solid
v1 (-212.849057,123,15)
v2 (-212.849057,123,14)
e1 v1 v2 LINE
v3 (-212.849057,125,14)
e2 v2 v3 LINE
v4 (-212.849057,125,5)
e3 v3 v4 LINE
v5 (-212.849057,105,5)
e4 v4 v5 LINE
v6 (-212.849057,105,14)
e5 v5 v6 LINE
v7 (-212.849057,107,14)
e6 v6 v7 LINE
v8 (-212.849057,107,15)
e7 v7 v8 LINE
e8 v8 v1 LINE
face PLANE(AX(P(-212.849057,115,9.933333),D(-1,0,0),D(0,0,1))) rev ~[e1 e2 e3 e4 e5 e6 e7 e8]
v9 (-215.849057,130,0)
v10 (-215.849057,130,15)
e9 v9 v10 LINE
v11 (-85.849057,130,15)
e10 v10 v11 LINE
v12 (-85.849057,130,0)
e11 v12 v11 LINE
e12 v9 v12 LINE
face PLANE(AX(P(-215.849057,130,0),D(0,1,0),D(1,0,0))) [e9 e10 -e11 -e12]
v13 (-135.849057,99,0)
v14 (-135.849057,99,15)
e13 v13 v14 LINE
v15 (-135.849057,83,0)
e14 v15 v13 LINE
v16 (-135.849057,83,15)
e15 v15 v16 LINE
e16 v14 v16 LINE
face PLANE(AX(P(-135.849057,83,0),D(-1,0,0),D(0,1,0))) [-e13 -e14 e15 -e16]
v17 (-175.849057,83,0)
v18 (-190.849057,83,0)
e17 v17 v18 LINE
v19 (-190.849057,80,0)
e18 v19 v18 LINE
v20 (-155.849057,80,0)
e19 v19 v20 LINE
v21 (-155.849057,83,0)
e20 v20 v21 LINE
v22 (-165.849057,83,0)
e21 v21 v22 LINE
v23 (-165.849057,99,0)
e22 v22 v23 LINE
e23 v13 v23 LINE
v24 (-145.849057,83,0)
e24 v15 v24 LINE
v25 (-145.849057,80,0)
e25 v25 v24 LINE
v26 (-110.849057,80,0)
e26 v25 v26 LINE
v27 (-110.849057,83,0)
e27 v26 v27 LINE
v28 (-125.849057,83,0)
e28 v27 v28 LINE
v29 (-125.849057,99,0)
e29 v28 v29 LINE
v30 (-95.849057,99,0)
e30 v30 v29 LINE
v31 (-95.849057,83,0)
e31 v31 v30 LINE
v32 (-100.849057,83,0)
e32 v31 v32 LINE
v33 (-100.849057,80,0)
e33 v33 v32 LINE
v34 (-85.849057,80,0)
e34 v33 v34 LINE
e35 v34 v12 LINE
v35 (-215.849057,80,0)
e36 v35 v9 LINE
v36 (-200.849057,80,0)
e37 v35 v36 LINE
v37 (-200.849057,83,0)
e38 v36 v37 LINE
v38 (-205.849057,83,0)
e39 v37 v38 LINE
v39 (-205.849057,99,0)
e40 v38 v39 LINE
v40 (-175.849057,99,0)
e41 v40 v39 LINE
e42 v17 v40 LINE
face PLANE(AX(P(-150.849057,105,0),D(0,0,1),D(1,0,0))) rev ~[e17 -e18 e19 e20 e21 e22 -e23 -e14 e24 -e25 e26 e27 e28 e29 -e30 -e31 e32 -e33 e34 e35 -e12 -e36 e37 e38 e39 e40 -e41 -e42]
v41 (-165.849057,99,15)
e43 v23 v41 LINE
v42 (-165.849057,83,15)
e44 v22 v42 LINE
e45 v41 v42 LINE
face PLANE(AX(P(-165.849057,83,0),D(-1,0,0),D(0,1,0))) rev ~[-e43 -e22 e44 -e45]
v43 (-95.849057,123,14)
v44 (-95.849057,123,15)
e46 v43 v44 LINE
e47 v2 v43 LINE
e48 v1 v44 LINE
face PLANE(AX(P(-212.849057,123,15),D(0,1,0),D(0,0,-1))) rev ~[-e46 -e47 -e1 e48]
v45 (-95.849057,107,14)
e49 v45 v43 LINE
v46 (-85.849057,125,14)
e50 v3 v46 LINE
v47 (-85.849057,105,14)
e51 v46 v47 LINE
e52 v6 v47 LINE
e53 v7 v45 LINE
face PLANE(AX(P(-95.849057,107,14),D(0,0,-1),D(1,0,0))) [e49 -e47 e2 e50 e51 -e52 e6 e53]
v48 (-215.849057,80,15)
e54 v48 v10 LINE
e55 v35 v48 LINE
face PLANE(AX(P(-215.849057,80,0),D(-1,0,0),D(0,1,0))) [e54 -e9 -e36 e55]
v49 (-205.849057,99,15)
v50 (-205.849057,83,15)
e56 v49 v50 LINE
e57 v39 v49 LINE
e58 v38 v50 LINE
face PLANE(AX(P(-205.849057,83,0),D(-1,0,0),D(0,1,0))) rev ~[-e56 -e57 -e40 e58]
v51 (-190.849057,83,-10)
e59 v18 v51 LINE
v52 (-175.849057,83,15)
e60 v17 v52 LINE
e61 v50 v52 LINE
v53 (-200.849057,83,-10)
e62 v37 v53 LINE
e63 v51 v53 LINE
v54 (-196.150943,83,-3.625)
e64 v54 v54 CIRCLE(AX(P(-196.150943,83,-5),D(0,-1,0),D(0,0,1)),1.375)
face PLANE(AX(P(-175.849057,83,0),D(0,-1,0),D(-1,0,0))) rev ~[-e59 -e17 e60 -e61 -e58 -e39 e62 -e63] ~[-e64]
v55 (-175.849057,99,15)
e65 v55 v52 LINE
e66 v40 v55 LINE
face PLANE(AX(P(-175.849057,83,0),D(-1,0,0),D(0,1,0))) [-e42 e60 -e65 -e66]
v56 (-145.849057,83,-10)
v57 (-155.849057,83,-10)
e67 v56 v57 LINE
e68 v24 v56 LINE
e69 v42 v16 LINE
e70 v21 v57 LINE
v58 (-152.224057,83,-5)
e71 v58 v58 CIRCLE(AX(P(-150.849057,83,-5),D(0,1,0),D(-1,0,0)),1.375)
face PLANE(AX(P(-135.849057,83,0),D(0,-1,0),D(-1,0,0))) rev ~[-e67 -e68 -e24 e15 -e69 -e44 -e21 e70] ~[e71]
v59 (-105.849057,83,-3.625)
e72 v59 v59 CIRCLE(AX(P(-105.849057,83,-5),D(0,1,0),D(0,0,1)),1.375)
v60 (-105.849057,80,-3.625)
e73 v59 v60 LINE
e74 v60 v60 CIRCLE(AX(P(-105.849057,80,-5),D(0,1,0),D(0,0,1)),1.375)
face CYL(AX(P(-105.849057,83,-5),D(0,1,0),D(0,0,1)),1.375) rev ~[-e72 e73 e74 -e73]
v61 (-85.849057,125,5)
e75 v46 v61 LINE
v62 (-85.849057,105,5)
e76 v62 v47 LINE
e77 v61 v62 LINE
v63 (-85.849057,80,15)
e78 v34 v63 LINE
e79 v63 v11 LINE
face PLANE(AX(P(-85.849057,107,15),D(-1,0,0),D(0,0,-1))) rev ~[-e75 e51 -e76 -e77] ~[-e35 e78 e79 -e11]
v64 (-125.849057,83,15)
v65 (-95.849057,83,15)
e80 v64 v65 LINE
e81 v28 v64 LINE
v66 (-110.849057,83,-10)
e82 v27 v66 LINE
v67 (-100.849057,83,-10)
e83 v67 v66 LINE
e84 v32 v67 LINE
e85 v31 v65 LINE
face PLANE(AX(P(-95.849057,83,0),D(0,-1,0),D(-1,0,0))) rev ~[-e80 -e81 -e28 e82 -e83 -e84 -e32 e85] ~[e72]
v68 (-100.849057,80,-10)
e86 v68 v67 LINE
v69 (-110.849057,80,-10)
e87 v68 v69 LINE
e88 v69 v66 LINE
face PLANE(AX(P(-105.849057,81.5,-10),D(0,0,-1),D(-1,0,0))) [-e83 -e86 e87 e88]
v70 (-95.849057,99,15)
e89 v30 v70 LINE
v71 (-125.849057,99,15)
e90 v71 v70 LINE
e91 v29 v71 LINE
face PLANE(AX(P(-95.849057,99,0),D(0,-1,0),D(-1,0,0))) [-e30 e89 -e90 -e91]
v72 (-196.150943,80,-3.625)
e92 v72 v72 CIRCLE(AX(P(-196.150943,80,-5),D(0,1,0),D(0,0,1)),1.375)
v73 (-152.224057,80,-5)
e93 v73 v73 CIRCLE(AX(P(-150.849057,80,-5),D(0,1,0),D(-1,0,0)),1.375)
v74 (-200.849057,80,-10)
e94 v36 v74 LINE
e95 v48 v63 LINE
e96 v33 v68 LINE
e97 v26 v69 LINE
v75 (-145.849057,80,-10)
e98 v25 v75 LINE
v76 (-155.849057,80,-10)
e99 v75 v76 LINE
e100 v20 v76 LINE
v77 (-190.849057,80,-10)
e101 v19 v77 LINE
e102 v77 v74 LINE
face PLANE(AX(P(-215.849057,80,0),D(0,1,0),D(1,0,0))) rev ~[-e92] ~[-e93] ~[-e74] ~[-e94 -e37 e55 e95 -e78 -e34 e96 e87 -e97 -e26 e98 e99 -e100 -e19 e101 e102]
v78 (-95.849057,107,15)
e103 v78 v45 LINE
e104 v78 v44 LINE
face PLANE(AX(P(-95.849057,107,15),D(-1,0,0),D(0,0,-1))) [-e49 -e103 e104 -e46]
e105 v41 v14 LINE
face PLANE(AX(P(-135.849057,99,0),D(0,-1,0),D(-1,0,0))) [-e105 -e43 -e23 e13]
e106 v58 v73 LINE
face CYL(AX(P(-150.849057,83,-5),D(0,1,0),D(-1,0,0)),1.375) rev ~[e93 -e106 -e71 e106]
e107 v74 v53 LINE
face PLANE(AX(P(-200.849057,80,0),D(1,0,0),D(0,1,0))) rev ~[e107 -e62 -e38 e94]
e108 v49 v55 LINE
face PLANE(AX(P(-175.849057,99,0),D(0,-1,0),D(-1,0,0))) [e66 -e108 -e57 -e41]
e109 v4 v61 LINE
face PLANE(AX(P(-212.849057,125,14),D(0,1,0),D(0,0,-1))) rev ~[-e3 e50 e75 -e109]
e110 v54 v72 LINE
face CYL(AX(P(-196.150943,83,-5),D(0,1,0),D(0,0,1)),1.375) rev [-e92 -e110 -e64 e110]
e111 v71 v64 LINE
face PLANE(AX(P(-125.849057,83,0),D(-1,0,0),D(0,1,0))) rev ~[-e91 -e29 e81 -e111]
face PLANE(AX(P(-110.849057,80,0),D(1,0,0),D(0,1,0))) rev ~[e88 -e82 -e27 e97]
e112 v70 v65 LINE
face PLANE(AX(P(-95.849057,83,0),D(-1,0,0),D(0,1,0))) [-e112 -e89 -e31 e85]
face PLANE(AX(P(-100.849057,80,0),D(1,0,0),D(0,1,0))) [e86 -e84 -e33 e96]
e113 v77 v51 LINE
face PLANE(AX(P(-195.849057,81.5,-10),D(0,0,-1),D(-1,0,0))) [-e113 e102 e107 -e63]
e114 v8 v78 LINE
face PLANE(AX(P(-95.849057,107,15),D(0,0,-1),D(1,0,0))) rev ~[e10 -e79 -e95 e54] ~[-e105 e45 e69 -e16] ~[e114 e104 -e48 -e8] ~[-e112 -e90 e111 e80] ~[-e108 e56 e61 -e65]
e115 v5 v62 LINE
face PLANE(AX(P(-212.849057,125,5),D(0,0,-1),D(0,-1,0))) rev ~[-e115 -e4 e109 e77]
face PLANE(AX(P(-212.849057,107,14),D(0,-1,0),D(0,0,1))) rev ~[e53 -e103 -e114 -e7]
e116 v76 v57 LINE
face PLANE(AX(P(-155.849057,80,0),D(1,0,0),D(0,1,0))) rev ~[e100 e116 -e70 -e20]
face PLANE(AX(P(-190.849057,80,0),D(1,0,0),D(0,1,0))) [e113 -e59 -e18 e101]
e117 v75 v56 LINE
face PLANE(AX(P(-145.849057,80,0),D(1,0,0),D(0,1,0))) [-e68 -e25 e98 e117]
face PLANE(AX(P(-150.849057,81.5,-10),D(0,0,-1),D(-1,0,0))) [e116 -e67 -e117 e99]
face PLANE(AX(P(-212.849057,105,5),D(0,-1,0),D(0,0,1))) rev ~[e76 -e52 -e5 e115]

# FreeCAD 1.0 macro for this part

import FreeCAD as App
import Part
import Sketcher

V = App.Vector


def add_polygon(sketch, points):
    """Adds a closed chain of lines whose ends are joined by coincident constraints."""
    first, n = sketch.GeometryCount, len(points)
    for a, b in zip(points, points[1:] + points[:1]):
        sketch.addGeometry(Part.LineSegment(App.Vector(*a, 0), App.Vector(*b, 0)), False)
    for i in range(n):
        sketch.addConstraint(Sketcher.Constraint("Coincident", first + i, 2, first + (i + 1) % n, 1))

doc = App.newDocument("Part")
params = doc.addObject("Spreadsheet::Sheet", "Params")
for row, (alias, value) in enumerate([
    ("sketch1_width", "130 mm"),
    ("sketch1_height", "50 mm"),
    ("pad1_length", "15 mm"),
    ("sketch2_width", "2 mm"),
    ("sketch2_width2", "16 mm"),
    ("sketch2_height", "9 mm"),
    ("sketch2_height2", "1 mm"),
    ("pocket1_length", "185.458667 mm"),
    ("pocket1_length2", "127 mm"),
    ("sketch3_width", "10 mm"),
    ("sketch3_height", "3 mm"),
    ("pad2_length", "10 mm"),
    ("sketch4_width", "30 mm"),
    ("sketch4_height", "16 mm"),
    ("sketch5_diameter", "2.75 mm"),
    ("sketch6_width", "10 mm"),
    ("sketch6_height", "3 mm"),
    ("pad3_length", "10 mm"),
    ("sketch7_diameter", "2.75 mm"),
    ("pocket4_length", "10 mm"),
    ("sketch8_width", "10 mm"),
    ("sketch8_height", "1 mm"),
    ("pad4_length", "20 mm"),
], start=1):
    params.set(f"A{row}", alias)
    params.set(f"B{row}", "=" + value)
    params.setAlias(f"B{row}", alias)

body = doc.addObject("PartDesign::Body", "Body")

sketch1 = body.newObject("Sketcher::SketchObject", "Sketch")
sketch1.AttachmentSupport = (doc.getObject("XY_Plane"), [""])
sketch1.MapMode = "FlatFace"
add_polygon(sketch1, [(-216, 130), (-216, 80), (-86, 80), (-86, 130)])
sketch1.addConstraint([
    Sketcher.Constraint("Vertical", 0),
    Sketcher.Constraint("Horizontal", 1),
    Sketcher.Constraint("Vertical", 2),
    Sketcher.Constraint("Horizontal", 3),
    Sketcher.Constraint("DistanceX", 1, 1, 1, 2, 130.0),
    Sketcher.Constraint("DistanceY", 0, 2, 0, 1, 50.0),
    Sketcher.Constraint("DistanceY", -1, 1, 0, 2, 80.0),
    Sketcher.Constraint("DistanceX", 0, 2, -1, 1, 215.849057),
])
sketch1.setExpression("Constraints[8]", "Params.sketch1_width")
sketch1.setExpression("Constraints[9]", "Params.sketch1_height")
pad1 = body.newObject("PartDesign::Pad", "Pad")
pad1.Profile = sketch1
pad1.setExpression("Length", "Params.pad1_length")

sketch2 = body.newObject("Sketcher::SketchObject", "Sketch001")
sketch2.AttachmentSupport = (doc.getObject("YZ_Plane"), [""])
sketch2.MapMode = "FlatFace"
sketch2.AttachmentOffset = App.Placement(V(0, 0, -85.849057), App.Rotation())
add_polygon(sketch2, [(125, 5), (125, 14), (123, 14), (123, 15), (107, 15), (107, 14), (105, 14), (105, 5)])
sketch2.addConstraint([
    Sketcher.Constraint("Vertical", 0),
    Sketcher.Constraint("Horizontal", 1),
    Sketcher.Constraint("Vertical", 2),
    Sketcher.Constraint("Horizontal", 3),
    Sketcher.Constraint("Vertical", 4),
    Sketcher.Constraint("Horizontal", 5),
    Sketcher.Constraint("Vertical", 6),
    Sketcher.Constraint("Horizontal", 7),
    Sketcher.Constraint("Horizontal", 1, 2, 4, 2),
    Sketcher.Constraint("Equal", 1, 5),
    Sketcher.Constraint("DistanceX", 1, 2, 1, 1, 2.0),
    Sketcher.Constraint("DistanceX", 3, 2, 3, 1, 16.0),
    Sketcher.Constraint("DistanceY", 0, 1, 0, 2, 9.0),
    Sketcher.Constraint("DistanceY", 2, 1, 2, 2, 1.0),
    Sketcher.Constraint("DistanceX", -1, 1, 0, 2, 125.0),
    Sketcher.Constraint("DistanceY", -1, 1, 0, 2, 14.0),
])
sketch2.setExpression("Constraints[18]", "Params.sketch2_width")
sketch2.setExpression("Constraints[19]", "Params.sketch2_width2")
sketch2.setExpression("Constraints[20]", "Params.sketch2_height")
sketch2.setExpression("Constraints[21]", "Params.sketch2_height2")
pocket1 = body.newObject("PartDesign::Pocket", "Pocket")
pocket1.Profile = sketch2
pocket1.Type = "TwoLengths"
pocket1.setExpression("Length", "Params.pocket1_length")
pocket1.setExpression("Length2", "Params.pocket1_length2")
pocket1.Reversed = True

sketch3 = body.newObject("Sketcher::SketchObject", "Sketch002")
sketch3.AttachmentSupport = (doc.getObject("XY_Plane"), [""])
sketch3.MapMode = "FlatFace"
add_polygon(sketch3, [(-100.8, 83), (-100.8, 80), (-110.8, 80), (-110.8, 83)])
add_polygon(sketch3, [(-190.8, 83), (-190.8, 80), (-200.8, 80), (-200.8, 83)])
sketch3.addConstraint([
    Sketcher.Constraint("Vertical", 0),
    Sketcher.Constraint("Horizontal", 1),
    Sketcher.Constraint("Vertical", 2),
    Sketcher.Constraint("Horizontal", 3),
    Sketcher.Constraint("Vertical", 4),
    Sketcher.Constraint("Horizontal", 5),
    Sketcher.Constraint("Vertical", 6),
    Sketcher.Constraint("Horizontal", 7),
    Sketcher.Constraint("Horizontal", 1, 2, 4, 2),
    Sketcher.Constraint("Horizontal", 3, 2, 6, 2),
    Sketcher.Constraint("Equal", 3, 5),
    Sketcher.Constraint("DistanceX", 1, 2, 1, 1, 10.0),
    Sketcher.Constraint("DistanceY", 0, 2, 0, 1, 3.0),
    Sketcher.Constraint("DistanceY", -1, 1, 0, 2, 80.0),
    Sketcher.Constraint("DistanceX", 4, 2, 1, 2, 80.0),
    Sketcher.Constraint("DistanceX", 0, 2, -1, 1, 100.849057),
])
sketch3.setExpression("Constraints[19]", "Params.sketch3_width")
sketch3.setExpression("Constraints[20]", "Params.sketch3_height")
pad2 = body.newObject("PartDesign::Pad", "Pad001")
pad2.Profile = sketch3
pad2.setExpression("Length", "Params.pad2_length")
pad2.Reversed = True

sketch4 = body.newObject("Sketcher::SketchObject", "Sketch003")
sketch4.AttachmentSupport = (doc.getObject("XY_Plane"), [""])
sketch4.MapMode = "FlatFace"
add_polygon(sketch4, [(-176, 99), (-176, 83), (-206, 83), (-206, 99)])
add_polygon(sketch4, [(-136, 99), (-136, 83), (-166, 83), (-166, 99)])
add_polygon(sketch4, [(-96, 99), (-96, 83), (-126, 83), (-126, 99)])
sketch4.addConstraint([
    Sketcher.Constraint("Vertical", 0),
    Sketcher.Constraint("Horizontal", 1),
    Sketcher.Constraint("Vertical", 2),
    Sketcher.Constraint("Horizontal", 3),
    Sketcher.Constraint("Vertical", 4),
    Sketcher.Constraint("Horizontal", 5),
    Sketcher.Constraint("Vertical", 6),
    Sketcher.Constraint("Horizontal", 7),
    Sketcher.Constraint("Vertical", 8),
    Sketcher.Constraint("Horizontal", 9),
    Sketcher.Constraint("Vertical", 10),
    Sketcher.Constraint("Horizontal", 11),
    Sketcher.Constraint("Horizontal", 1, 2, 4, 2),
    Sketcher.Constraint("Horizontal", 3, 2, 6, 2),
    Sketcher.Constraint("Horizontal", 5, 2, 8, 2),
    Sketcher.Constraint("Horizontal", 7, 2, 10, 2),
    Sketcher.Constraint("Equal", 3, 5),
    Sketcher.Constraint("Equal", 7, 9),
    Sketcher.Constraint("DistanceX", 1, 2, 1, 1, 30.0),
    Sketcher.Constraint("DistanceY", 0, 2, 0, 1, 16.0),
    Sketcher.Constraint("DistanceY", -1, 1, 0, 2, 83.0),
    Sketcher.Constraint("DistanceX", 0, 2, 4, 2, 40.0),
    Sketcher.Constraint("DistanceX", 4, 2, 8, 2, 40.0),
    Sketcher.Constraint("DistanceX", 0, 2, -1, 1, 175.849057),
])
sketch4.setExpression("Constraints[30]", "Params.sketch4_width")
sketch4.setExpression("Constraints[31]", "Params.sketch4_height")
pocket2 = body.newObject("PartDesign::Pocket", "Pocket001")
pocket2.Profile = sketch4
pocket2.Type = "ThroughAll"
pocket2.Reversed = True

sketch5 = body.newObject("Sketcher::SketchObject", "Sketch004")
sketch5.AttachmentSupport = (doc.getObject("XZ_Plane"), [""])
sketch5.MapMode = "FlatFace"
sketch5.AttachmentOffset = App.Placement(V(0, 0, -83), App.Rotation())
sketch5.addGeometry(Part.Circle(V(-105.8, -5, 0), V(0, 0, 1), 1.4), False)
sketch5.addConstraint([
    Sketcher.Constraint("Diameter", 0, 2.75),
    Sketcher.Constraint("DistanceY", 0, 3, -1, 1, 5.0),
    Sketcher.Constraint("DistanceX", 0, 3, -1, 1, 105.849057),
])
sketch5.setExpression("Constraints[0]", "Params.sketch5_diameter")
pocket3 = body.newObject("PartDesign::Pocket", "Pocket002")
pocket3.Profile = sketch5
pocket3.Type = "ThroughAll"
pocket3.Reversed = True
doc.recompute()

datumplane = body.newObject("PartDesign::Plane", "DatumPlane")
datumplane.AttachmentSupport = (doc.getObject("YZ_Plane"), [""])
datumplane.MapMode = "FlatFace"
datumplane.AttachmentOffset = App.Placement(V(0, 0, -151), App.Rotation())
mirrored = body.newObject("PartDesign::Mirrored", "Mirrored")
mirrored.Originals = [pocket3]
mirrored.MirrorPlane = (datumplane, [""])
body.Tip = mirrored

sketch6 = body.newObject("Sketcher::SketchObject", "Sketch005")
sketch6.AttachmentSupport = (doc.getObject("XY_Plane"), [""])
sketch6.MapMode = "FlatFace"
add_polygon(sketch6, [(-145.8, 83), (-145.8, 80), (-155.8, 80), (-155.8, 83)])
sketch6.addConstraint([
    Sketcher.Constraint("Vertical", 0),
    Sketcher.Constraint("Horizontal", 1),
    Sketcher.Constraint("Vertical", 2),
    Sketcher.Constraint("Horizontal", 3),
    Sketcher.Constraint("DistanceX", 1, 2, 1, 1, 10.0),
    Sketcher.Constraint("DistanceY", 0, 2, 0, 1, 3.0),
    Sketcher.Constraint("DistanceY", -1, 1, 0, 2, 80.0),
    Sketcher.Constraint("DistanceX", 0, 2, -1, 1, 145.849057),
])
sketch6.setExpression("Constraints[8]", "Params.sketch6_width")
sketch6.setExpression("Constraints[9]", "Params.sketch6_height")
pad3 = body.newObject("PartDesign::Pad", "Pad002")
pad3.Profile = sketch6
pad3.setExpression("Length", "Params.pad3_length")
pad3.Reversed = True

sketch7 = body.newObject("Sketcher::SketchObject", "Sketch006")
sketch7.AttachmentSupport = (doc.getObject("XZ_Plane"), [""])
sketch7.MapMode = "FlatFace"
sketch7.AttachmentOffset = App.Placement(V(0, 0, -83), App.Rotation())
sketch7.addGeometry(Part.Circle(V(-150.8, -5, 0), V(0, 0, 1), 1.4), False)
sketch7.addConstraint([
    Sketcher.Constraint("Diameter", 0, 2.75),
    Sketcher.Constraint("DistanceY", 0, 3, -1, 1, 5.0),
    Sketcher.Constraint("DistanceX", 0, 3, -1, 1, 150.849057),
])
sketch7.setExpression("Constraints[0]", "Params.sketch7_diameter")
pocket4 = body.newObject("PartDesign::Pocket", "Pocket003")
pocket4.Profile = sketch7
pocket4.setExpression("Length", "Params.pocket4_length")
pocket4.Reversed = True

sketch8 = body.newObject("Sketcher::SketchObject", "Sketch007")
sketch8.AttachmentSupport = (doc.getObject("XZ_Plane"), [""])
sketch8.MapMode = "FlatFace"
sketch8.AttachmentOffset = App.Placement(V(0, 0, -107), App.Rotation())
add_polygon(sketch8, [(-95.8, 14), (-95.8, 15), (-85.8, 15), (-85.8, 14)])
sketch8.addConstraint([
    Sketcher.Constraint("Vertical", 0),
    Sketcher.Constraint("Horizontal", 1),
    Sketcher.Constraint("Vertical", 2),
    Sketcher.Constraint("Horizontal", 3),
    Sketcher.Constraint("DistanceX", 1, 1, 1, 2, 10.0),
    Sketcher.Constraint("DistanceY", 0, 1, 0, 2, 1.0),
    Sketcher.Constraint("DistanceY", -1, 1, 0, 2, 15.0),
    Sketcher.Constraint("DistanceX", 0, 2, -1, 1, 95.849057),
])
sketch8.setExpression("Constraints[8]", "Params.sketch8_width")
sketch8.setExpression("Constraints[9]", "Params.sketch8_height")
pad4 = body.newObject("PartDesign::Pad", "Pad003")
pad4.Profile = sketch8
pad4.setExpression("Length", "Params.pad4_length")
pad4.Reversed = True

doc.recompute()
